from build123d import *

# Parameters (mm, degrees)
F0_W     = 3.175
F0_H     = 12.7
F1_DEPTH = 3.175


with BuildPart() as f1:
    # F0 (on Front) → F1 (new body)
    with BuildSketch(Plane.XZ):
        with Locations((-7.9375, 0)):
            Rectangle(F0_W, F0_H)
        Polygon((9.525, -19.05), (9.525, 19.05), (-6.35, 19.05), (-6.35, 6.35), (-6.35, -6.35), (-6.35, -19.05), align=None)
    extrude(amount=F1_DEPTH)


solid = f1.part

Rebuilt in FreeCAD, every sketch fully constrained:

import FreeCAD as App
import Part
import Sketcher
from FreeCAD import Vector
Q = App.Units.Quantity

doc = App.newDocument("Part")
body = doc.addObject("PartDesign::Body", "Body")

# Sketch on XZ plane
sketch1 = body.newObject("Sketcher::SketchObject", "Sketch")
sketch1.AttachmentSupport = (doc.getObject("XZ_Plane"), [""])
sketch1.MapMode = "FlatFace"
sketch1.addGeometry([
    Part.LineSegment(Vector(-9.525, 6.35, 0), Vector(-9.525, -6.35, 0)),  # 0
    Part.LineSegment(Vector(-9.525, -6.35, 0), Vector(-6.35, -6.35, 0)),  # 1
    Part.LineSegment(Vector(-6.35, -6.35, 0), Vector(-6.35, -19.05, 0)),  # 2
    Part.LineSegment(Vector(-6.35, -19.05, 0), Vector(9.525, -19.05, 0)),  # 3
    Part.LineSegment(Vector(9.525, -19.05, 0), Vector(9.525, 19.05, 0)),  # 4
    Part.LineSegment(Vector(9.525, 19.05, 0), Vector(-6.35, 19.05, 0)),  # 5
    Part.LineSegment(Vector(-6.35, 19.05, 0), Vector(-6.35, 6.35, 0)),  # 6
    Part.LineSegment(Vector(-6.35, 6.35, 0), Vector(-9.525, 6.35, 0)),  # 7
], False)
sketch1.addConstraint([
    Sketcher.Constraint("Coincident", 0, 2, 1, 1),
    Sketcher.Constraint("Coincident", 1, 2, 2, 1),
    Sketcher.Constraint("Coincident", 2, 2, 3, 1),
    Sketcher.Constraint("Coincident", 3, 2, 4, 1),
    Sketcher.Constraint("Coincident", 4, 2, 5, 1),
    Sketcher.Constraint("Coincident", 5, 2, 6, 1),
    Sketcher.Constraint("Coincident", 6, 2, 7, 1),
    Sketcher.Constraint("Coincident", 7, 2, 0, 1),
    Sketcher.Constraint("Vertical", 0),
    Sketcher.Constraint("Horizontal", 1),
    Sketcher.Constraint("Vertical", 2),
    Sketcher.Constraint("Horizontal", 3),
    Sketcher.Constraint("Vertical", 4),
    Sketcher.Constraint("Horizontal", 5),
    Sketcher.Constraint("Vertical", 6),
    Sketcher.Constraint("Horizontal", 7),
    Sketcher.Constraint("Symmetric", 2, 2, 5, 2, -1),
    Sketcher.Constraint("Equal", 0, 2),
    Sketcher.Constraint("Equal", 2, 6),
    Sketcher.Constraint("DistanceY", 0, 2, 0, 1, Q("0.5 in")),
    Sketcher.Constraint("DistanceX", 1, 1, 1, 2, Q("0.125 in")),
    Sketcher.Constraint("DistanceX", 3, 1, 3, 2, Q("0.625 in")),
    Sketcher.Constraint("DistanceX", 1, 2, -1, 1, Q("0.25 in")),
])
pad1 = body.newObject("PartDesign::Pad", "Pad")
pad1.Profile = sketch1
pad1.Length = Q("0.125 in")

doc.recompute()
